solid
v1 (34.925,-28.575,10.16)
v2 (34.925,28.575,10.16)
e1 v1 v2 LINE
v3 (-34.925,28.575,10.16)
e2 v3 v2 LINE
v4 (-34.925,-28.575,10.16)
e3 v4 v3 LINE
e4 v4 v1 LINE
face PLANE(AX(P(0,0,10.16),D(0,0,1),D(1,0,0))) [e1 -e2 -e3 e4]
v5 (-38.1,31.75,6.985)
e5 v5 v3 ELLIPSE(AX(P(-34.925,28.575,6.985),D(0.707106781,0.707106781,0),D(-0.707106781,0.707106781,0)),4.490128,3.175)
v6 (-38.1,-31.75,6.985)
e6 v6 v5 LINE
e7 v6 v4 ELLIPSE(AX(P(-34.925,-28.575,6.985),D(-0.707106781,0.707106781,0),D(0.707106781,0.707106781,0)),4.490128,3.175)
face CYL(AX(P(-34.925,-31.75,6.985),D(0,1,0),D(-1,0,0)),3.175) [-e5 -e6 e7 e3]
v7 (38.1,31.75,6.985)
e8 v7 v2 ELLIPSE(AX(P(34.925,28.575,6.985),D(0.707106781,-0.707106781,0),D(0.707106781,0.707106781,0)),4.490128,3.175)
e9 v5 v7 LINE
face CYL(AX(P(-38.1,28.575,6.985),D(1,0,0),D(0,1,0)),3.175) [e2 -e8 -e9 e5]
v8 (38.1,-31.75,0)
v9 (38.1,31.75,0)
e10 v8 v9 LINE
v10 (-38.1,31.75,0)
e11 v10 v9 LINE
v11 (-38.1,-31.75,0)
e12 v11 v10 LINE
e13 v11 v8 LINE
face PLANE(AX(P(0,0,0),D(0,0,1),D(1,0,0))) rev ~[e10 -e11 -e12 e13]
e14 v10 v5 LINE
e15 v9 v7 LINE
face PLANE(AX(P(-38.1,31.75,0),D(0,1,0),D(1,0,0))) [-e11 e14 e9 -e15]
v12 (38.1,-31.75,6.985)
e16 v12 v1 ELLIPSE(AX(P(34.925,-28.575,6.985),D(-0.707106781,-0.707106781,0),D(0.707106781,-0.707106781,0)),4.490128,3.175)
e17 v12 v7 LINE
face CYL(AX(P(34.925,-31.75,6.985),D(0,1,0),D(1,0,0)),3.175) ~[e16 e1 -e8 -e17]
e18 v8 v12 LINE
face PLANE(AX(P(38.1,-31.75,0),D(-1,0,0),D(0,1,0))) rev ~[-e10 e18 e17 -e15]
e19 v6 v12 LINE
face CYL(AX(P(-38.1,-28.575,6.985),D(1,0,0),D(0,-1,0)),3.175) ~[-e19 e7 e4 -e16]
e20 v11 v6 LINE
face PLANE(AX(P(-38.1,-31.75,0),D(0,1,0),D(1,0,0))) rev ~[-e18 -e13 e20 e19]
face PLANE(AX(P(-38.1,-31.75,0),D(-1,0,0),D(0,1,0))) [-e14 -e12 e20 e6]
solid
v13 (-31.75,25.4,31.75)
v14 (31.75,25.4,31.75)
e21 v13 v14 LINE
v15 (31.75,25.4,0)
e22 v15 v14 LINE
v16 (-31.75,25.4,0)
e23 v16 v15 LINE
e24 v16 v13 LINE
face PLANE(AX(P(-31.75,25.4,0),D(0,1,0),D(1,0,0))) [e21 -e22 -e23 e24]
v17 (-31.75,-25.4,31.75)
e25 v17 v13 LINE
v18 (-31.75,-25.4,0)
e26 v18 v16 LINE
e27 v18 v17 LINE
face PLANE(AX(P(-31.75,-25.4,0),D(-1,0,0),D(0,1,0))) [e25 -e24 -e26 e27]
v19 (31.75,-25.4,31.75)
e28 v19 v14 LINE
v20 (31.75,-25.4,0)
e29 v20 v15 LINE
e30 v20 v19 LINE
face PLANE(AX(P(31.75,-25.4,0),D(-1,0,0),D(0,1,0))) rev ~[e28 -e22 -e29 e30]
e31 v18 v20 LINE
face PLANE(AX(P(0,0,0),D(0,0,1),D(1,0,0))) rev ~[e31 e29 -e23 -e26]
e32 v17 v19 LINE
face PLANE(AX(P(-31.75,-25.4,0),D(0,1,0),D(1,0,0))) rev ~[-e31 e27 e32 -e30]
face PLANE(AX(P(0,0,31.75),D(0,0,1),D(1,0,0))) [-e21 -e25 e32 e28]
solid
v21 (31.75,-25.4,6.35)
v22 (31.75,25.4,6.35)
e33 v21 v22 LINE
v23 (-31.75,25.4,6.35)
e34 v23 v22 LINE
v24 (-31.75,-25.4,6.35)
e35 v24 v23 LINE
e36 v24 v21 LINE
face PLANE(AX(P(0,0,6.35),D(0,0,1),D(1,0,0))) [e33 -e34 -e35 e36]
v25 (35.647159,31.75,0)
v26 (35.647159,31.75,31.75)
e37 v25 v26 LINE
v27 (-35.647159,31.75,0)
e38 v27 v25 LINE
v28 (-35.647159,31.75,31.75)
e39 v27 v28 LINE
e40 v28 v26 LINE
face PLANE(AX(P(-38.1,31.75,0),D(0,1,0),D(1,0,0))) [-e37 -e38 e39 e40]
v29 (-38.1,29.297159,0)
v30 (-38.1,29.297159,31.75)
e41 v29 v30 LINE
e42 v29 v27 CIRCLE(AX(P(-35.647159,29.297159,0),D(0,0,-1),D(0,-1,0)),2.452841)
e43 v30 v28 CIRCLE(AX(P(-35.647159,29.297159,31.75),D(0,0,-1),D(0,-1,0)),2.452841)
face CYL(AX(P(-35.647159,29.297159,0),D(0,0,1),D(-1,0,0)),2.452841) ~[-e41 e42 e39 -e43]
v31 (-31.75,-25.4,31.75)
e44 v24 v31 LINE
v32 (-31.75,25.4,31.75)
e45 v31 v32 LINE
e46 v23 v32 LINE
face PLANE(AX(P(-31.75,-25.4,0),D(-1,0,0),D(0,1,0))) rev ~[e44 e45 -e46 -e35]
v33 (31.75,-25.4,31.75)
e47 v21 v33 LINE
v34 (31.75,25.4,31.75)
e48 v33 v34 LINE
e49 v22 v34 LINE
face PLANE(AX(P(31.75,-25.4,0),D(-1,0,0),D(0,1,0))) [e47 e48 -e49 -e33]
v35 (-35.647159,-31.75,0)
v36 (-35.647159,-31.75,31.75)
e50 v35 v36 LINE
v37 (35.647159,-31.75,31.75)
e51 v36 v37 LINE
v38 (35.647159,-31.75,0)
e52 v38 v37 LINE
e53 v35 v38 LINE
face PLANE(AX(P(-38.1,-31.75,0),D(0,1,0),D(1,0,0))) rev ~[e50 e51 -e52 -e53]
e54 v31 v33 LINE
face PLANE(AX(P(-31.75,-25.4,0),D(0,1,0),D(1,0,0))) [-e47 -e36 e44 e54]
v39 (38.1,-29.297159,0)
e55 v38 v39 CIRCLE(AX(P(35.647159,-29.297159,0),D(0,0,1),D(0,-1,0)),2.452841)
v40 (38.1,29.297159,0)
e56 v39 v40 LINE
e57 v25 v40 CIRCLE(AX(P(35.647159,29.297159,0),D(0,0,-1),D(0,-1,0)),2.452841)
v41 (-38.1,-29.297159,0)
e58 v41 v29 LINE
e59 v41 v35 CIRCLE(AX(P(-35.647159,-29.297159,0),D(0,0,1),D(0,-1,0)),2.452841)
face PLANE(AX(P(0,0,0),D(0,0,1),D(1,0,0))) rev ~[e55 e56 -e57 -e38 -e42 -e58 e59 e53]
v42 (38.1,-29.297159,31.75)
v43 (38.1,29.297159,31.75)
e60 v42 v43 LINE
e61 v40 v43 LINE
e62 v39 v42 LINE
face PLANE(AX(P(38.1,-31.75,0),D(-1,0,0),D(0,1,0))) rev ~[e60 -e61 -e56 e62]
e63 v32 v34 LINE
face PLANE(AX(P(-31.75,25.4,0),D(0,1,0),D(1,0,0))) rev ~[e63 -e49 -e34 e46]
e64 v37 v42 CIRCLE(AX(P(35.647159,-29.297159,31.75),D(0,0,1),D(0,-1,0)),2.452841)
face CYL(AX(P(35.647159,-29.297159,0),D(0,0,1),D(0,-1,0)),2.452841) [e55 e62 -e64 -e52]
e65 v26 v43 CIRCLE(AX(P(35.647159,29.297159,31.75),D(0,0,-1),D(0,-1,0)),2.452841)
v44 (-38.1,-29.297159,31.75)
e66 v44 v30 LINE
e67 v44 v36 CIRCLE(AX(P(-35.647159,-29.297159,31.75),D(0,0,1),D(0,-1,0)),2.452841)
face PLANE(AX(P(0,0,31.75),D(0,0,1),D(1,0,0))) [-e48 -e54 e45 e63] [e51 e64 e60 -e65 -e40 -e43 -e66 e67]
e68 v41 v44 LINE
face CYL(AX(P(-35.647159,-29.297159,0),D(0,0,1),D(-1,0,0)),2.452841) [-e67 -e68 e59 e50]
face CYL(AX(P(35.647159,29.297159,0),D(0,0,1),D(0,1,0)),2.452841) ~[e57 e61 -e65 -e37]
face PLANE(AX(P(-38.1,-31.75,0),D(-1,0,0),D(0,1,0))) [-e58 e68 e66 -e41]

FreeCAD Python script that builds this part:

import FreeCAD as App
import Part
import Sketcher

V = App.Vector
Q = App.Units.Quantity


def edges_at(feature, points):
    """Names of the edges that pass closest to the given points."""
    edges = feature.Shape.Edges
    near = lambda p: min(range(len(edges)), key=lambda i: edges[i].distToShape(Part.Vertex(*p))[0])
    return sorted({f"Edge{near(p) + 1}" for p in points})

doc = App.newDocument("Part")
body = doc.addObject("PartDesign::Body", "Body")

# Sketch on XY plane
sketch1 = body.newObject("Sketcher::SketchObject", "Sketch")
sketch1.AttachmentSupport = (doc.getObject("XY_Plane"), [""])
sketch1.MapMode = "FlatFace"
sketch1.addGeometry([
    Part.LineSegment(V(-38, 32, 0), V(-38, -32, 0)),  # 0
    Part.LineSegment(V(-38, -32, 0), V(38, -32, 0)),  # 1
    Part.LineSegment(V(38, -32, 0), V(38, 32, 0)),  # 2
    Part.LineSegment(V(38, 32, 0), V(-38, 32, 0)),  # 3
    Part.LineSegment(V(32, -25, 0), V(-32, -25, 0)),  # 4
    Part.LineSegment(V(-32, -25, 0), V(-32, 25, 0)),  # 5
    Part.LineSegment(V(-32, 25, 0), V(32, 25, 0)),  # 6
    Part.LineSegment(V(32, 25, 0), V(32, -25, 0)),  # 7
], False)
sketch1.addConstraint([
    Sketcher.Constraint("Coincident", 0, 2, 1, 1),
    Sketcher.Constraint("Coincident", 1, 2, 2, 1),
    Sketcher.Constraint("Coincident", 2, 2, 3, 1),
    Sketcher.Constraint("Coincident", 3, 2, 0, 1),
    Sketcher.Constraint("Coincident", 4, 2, 5, 1),
    Sketcher.Constraint("Coincident", 5, 2, 6, 1),
    Sketcher.Constraint("Coincident", 6, 2, 7, 1),
    Sketcher.Constraint("Coincident", 7, 2, 4, 1),
    Sketcher.Constraint("Vertical", 0),
    Sketcher.Constraint("Horizontal", 1),
    Sketcher.Constraint("Vertical", 2),
    Sketcher.Constraint("Horizontal", 3),
    Sketcher.Constraint("Horizontal", 4),
    Sketcher.Constraint("Vertical", 5),
    Sketcher.Constraint("Horizontal", 6),
    Sketcher.Constraint("Vertical", 7),
    Sketcher.Constraint("Symmetric", 0, 2, 2, 2, -1, 1),
    Sketcher.Constraint("Symmetric", 4, 2, 6, 2, -1, 1),
    Sketcher.Constraint("Equal", 6, 0),
    Sketcher.Constraint("DistanceX", 1, 1, 1, 2, Q("3 in")),
    Sketcher.Constraint("DistanceY", 5, 1, 5, 2, Q("2 in")),
    Sketcher.Constraint("DistanceX", 4, 2, 4, 1, Q("2.5 in")),
])
pad1 = body.newObject("PartDesign::Pad", "Pad")
pad1.Profile = sketch1
pad1.Length = Q("1.25 in")

# Sketch on XY plane
sketch2 = body.newObject("Sketcher::SketchObject", "Sketch001")
sketch2.AttachmentSupport = (doc.getObject("XY_Plane"), [""])
sketch2.MapMode = "FlatFace"
sketch2.addGeometry([
    Part.LineSegment(V(-32, 25, 0), V(-32, -25, 0)),
    Part.LineSegment(V(-32, -25, 0), V(32, -25, 0)),
    Part.LineSegment(V(32, -25, 0), V(32, 25, 0)),
    Part.LineSegment(V(32, 25, 0), V(-32, 25, 0)),
], False)
sketch2.addConstraint([
    Sketcher.Constraint("Coincident", 0, 2, 1, 1),
    Sketcher.Constraint("Coincident", 1, 2, 2, 1),
    Sketcher.Constraint("Coincident", 2, 2, 3, 1),
    Sketcher.Constraint("Coincident", 3, 2, 0, 1),
    Sketcher.Constraint("Vertical", 0),
    Sketcher.Constraint("Horizontal", 1),
    Sketcher.Constraint("Vertical", 2),
    Sketcher.Constraint("Horizontal", 3),
    Sketcher.Constraint("Symmetric", 0, 2, 2, 2, -1, 1),
    Sketcher.Constraint("DistanceY", 0, 2, 0, 1, Q("2 in")),
    Sketcher.Constraint("DistanceX", 1, 1, 1, 2, Q("2.5 in")),
])
pad2 = body.newObject("PartDesign::Pad", "Pad001")
pad2.Profile = sketch2
pad2.Length = Q("0.25 in")
doc.recompute()

fillet = body.newObject("PartDesign::Fillet", "Fillet")
fillet.Base = (pad2, edges_at(pad2, [
    (-38.1, 31.75, 15.875),
    (38.1, 31.75, 15.875),
    (38.1, -31.75, 15.875),
    (-38.1, -31.75, 15.875),
]))
fillet.Radius = 2.452841
body2 = doc.addObject("PartDesign::Body", "Body001")

# Sketch on XY plane
sketch3 = body2.newObject("Sketcher::SketchObject", "Sketch002")
sketch3.AttachmentSupport = (doc.getObject("XY_Plane001"), [""])
sketch3.MapMode = "FlatFace"
sketch3.addGeometry([
    Part.LineSegment(V(-38, 32, 0), V(-38, -32, 0)),
    Part.LineSegment(V(-38, -32, 0), V(38, -32, 0)),
    Part.LineSegment(V(38, -32, 0), V(38, 32, 0)),
    Part.LineSegment(V(38, 32, 0), V(-38, 32, 0)),
], False)
sketch3.addConstraint([
    Sketcher.Constraint("Coincident", 0, 2, 1, 1),
    Sketcher.Constraint("Coincident", 1, 2, 2, 1),
    Sketcher.Constraint("Coincident", 2, 2, 3, 1),
    Sketcher.Constraint("Coincident", 3, 2, 0, 1),
    Sketcher.Constraint("Vertical", 0),
    Sketcher.Constraint("Horizontal", 1),
    Sketcher.Constraint("Vertical", 2),
    Sketcher.Constraint("Horizontal", 3),
    Sketcher.Constraint("Symmetric", 0, 2, 2, 2, -1, 1),
    Sketcher.Constraint("DistanceX", 1, 1, 1, 2, Q("3 in")),
    Sketcher.Constraint("DistanceY", 0, 2, 0, 1, Q("2.5 in")),
])
pad3 = body2.newObject("PartDesign::Pad", "Pad002")
pad3.Profile = sketch3
pad3.Length = Q("0.4 in")
doc.recompute()

fillet2 = body2.newObject("PartDesign::Fillet", "Fillet001")
fillet2.Base = (pad3, edges_at(pad3, [
    (0, -31.75, 10.16),
    (-38.1, 0, 10.16),
    (38.1, 0, 10.16),
    (0, 31.75, 10.16),
]))
fillet2.Radius = Q("0.125 in")
body3 = doc.addObject("PartDesign::Body", "Body002")

# Sketch on XY plane
sketch4 = body3.newObject("Sketcher::SketchObject", "Sketch003")
sketch4.AttachmentSupport = (doc.getObject("XY_Plane002"), [""])
sketch4.MapMode = "FlatFace"
sketch4.addGeometry([
    Part.LineSegment(V(-32, 25, 0), V(-32, -25, 0)),
    Part.LineSegment(V(-32, -25, 0), V(32, -25, 0)),
    Part.LineSegment(V(32, -25, 0), V(32, 25, 0)),
    Part.LineSegment(V(32, 25, 0), V(-32, 25, 0)),
], False)
sketch4.addConstraint([
    Sketcher.Constraint("Coincident", 0, 2, 1, 1),
    Sketcher.Constraint("Coincident", 1, 2, 2, 1),
    Sketcher.Constraint("Coincident", 2, 2, 3, 1),
    Sketcher.Constraint("Coincident", 3, 2, 0, 1),
    Sketcher.Constraint("Vertical", 0),
    Sketcher.Constraint("Horizontal", 1),
    Sketcher.Constraint("Vertical", 2),
    Sketcher.Constraint("Horizontal", 3),
    Sketcher.Constraint("Symmetric", 0, 2, 2, 2, -1, 1),
    Sketcher.Constraint("DistanceY", 0, 2, 0, 1, Q("2 in")),
    Sketcher.Constraint("DistanceX", 1, 1, 1, 2, Q("2.5 in")),
])
pad4 = body3.newObject("PartDesign::Pad", "Pad003")
pad4.Profile = sketch4
pad4.Length = Q("1.25 in")

doc.recompute()
